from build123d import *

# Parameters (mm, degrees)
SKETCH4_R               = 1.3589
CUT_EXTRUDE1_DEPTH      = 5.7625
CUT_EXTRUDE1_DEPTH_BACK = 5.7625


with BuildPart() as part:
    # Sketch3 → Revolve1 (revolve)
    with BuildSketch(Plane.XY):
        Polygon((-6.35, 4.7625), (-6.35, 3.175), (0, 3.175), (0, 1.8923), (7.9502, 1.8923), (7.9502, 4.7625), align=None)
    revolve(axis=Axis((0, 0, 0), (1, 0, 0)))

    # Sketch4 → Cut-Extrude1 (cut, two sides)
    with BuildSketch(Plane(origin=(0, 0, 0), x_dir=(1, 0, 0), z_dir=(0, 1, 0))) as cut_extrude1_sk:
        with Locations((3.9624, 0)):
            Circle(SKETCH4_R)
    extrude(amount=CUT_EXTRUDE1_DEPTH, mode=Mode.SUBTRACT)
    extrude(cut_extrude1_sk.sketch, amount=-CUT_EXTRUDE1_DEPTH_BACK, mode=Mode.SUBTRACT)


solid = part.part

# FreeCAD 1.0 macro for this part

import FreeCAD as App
import Part
import Sketcher
from FreeCAD import Vector
Q = App.Units.Quantity

doc = App.newDocument("Part")
params = doc.addObject("Spreadsheet::Sheet", "Params")
for row, (alias, value) in enumerate([
    ("sketch1_width", "0.25 in"),
    ("sketch1_width2", "0.313 in"),
    ("sketch1_height", "0.0625 in"),
    ("sketch1_height2", "0.113 in"),
    ("revolution_angle", "360 deg"),
    ("sketch2_diameter", "0.107 in"),
], start=1):
    params.set(f"A{row}", alias)
    params.set(f"B{row}", "=" + value)
    params.setAlias(f"B{row}", alias)

body = doc.addObject("PartDesign::Body", "Body")

sketch1 = doc.addObject("Sketcher::SketchObject", "Sketch")
body.addObject(sketch1)
sketch1.AttachmentSupport = (doc.XY_Plane, [""])
sketch1.MapMode = "FlatFace"
sketch1.addGeometry([
    Part.LineSegment(Vector(-6.3, 4.8, 0), Vector(-6.3, 3.2, 0)),
    Part.LineSegment(Vector(-6.3, 3.2, 0), Vector(0, 3.2, 0)),
    Part.LineSegment(Vector(0, 3.2, 0), Vector(0, 1.9, 0)),
    Part.LineSegment(Vector(0, 1.9, 0), Vector(8, 1.9, 0)),
    Part.LineSegment(Vector(8, 1.9, 0), Vector(8, 4.8, 0)),
    Part.LineSegment(Vector(8, 4.8, 0), Vector(-6.3, 4.8, 0)),
], False)
sketch1.addConstraint([
    Sketcher.Constraint("Coincident", 0, 2, 1, 1),
    Sketcher.Constraint("Coincident", 1, 2, 2, 1),
    Sketcher.Constraint("Coincident", 2, 2, 3, 1),
    Sketcher.Constraint("Coincident", 3, 2, 4, 1),
    Sketcher.Constraint("Coincident", 4, 2, 5, 1),
    Sketcher.Constraint("Coincident", 5, 2, 0, 1),
    Sketcher.Constraint("Vertical", 0),
    Sketcher.Constraint("Horizontal", 1),
    Sketcher.Constraint("Vertical", 2),
    Sketcher.Constraint("Horizontal", 3),
    Sketcher.Constraint("Vertical", 4),
    Sketcher.Constraint("Horizontal", 5),
    Sketcher.Constraint("PointOnObject", 1, 2, -2),
    Sketcher.Constraint("DistanceX", 1, 1, 1, 2, Q("0.25 in")),
    Sketcher.Constraint("DistanceX", 3, 1, 3, 2, Q("0.313 in")),
    Sketcher.Constraint("DistanceY", 0, 2, 0, 1, Q("0.0625 in")),
    Sketcher.Constraint("DistanceY", 4, 1, 4, 2, Q("0.113 in")),
    Sketcher.Constraint("DistanceY", -1, 1, 0, 2, Q("0.125 in")),
])
sketch1.setExpression("Constraints[13]", "Params.sketch1_width")
sketch1.setExpression("Constraints[14]", "Params.sketch1_width2")
sketch1.setExpression("Constraints[15]", "Params.sketch1_height")
sketch1.setExpression("Constraints[16]", "Params.sketch1_height2")
revolution = doc.addObject("PartDesign::Revolution", "Revolution")
body.addObject(revolution)
revolution.Profile = sketch1
revolution.ReferenceAxis = (sketch1, ["H_Axis"])
revolution.setExpression("Angle", "Params.revolution_angle")

sketch2 = doc.addObject("Sketcher::SketchObject", "Sketch001")
body.addObject(sketch2)
sketch2.AttachmentSupport = (doc.XZ_Plane, [""])
sketch2.MapMode = "FlatFace"
sketch2.addGeometry(Part.Circle(Vector(4, 0, 0), Vector(0, 0, 1), 1.4), False)
sketch2.addConstraint([
    Sketcher.Constraint("PointOnObject", 0, 3, -1),
    Sketcher.Constraint("Diameter", 0, Q("0.107 in")),
    Sketcher.Constraint("DistanceX", -1, 1, 0, 3, Q("0.156 in")),
])
sketch2.setExpression("Constraints[1]", "Params.sketch2_diameter")
pocket1 = doc.addObject("PartDesign::Pocket", "Pocket")
body.addObject(pocket1)
pocket1.Profile = sketch2
pocket1.Type = "ThroughAll"
pocket1.Midplane = True

doc.recompute()
